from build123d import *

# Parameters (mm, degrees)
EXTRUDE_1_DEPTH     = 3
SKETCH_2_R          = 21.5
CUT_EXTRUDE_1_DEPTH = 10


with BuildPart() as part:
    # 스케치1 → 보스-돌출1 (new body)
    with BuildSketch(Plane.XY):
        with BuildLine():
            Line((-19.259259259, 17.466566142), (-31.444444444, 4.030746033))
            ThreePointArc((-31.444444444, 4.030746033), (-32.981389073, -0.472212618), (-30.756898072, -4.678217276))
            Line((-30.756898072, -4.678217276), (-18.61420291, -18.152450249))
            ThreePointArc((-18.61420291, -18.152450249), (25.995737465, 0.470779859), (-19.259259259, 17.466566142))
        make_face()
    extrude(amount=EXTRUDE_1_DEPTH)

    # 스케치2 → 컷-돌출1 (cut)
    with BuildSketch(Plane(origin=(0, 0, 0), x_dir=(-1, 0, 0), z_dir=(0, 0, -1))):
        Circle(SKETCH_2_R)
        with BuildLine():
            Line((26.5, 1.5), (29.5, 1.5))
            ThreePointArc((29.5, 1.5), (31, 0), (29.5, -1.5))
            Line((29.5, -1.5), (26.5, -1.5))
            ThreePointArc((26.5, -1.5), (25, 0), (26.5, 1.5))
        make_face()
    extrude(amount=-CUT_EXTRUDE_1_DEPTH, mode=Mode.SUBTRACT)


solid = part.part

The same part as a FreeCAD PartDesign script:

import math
import FreeCAD as App
import Part
import Sketcher
from FreeCAD import Vector

doc = App.newDocument("Part")
body = doc.addObject("PartDesign::Body", "Body")

# Sketch on XY plane
sketch1 = body.newObject("Sketcher::SketchObject", "Sketch")
sketch1.AttachmentSupport = (doc.getObject("XY_Plane"), [""])
sketch1.MapMode = "FlatFace"
sketch1.addGeometry(Part.LineSegment(Vector(-19, 17, 0), Vector(-31, 4, 0)), False)
sketch1.addGeometry(Part.ArcOfCircle(Part.Circle(Vector(-27, 0, 0), Vector(0, 0, 1), 6), math.radians(138), math.radians(231)), False)
sketch1.addGeometry(Part.LineSegment(Vector(-31, -5, 0), Vector(-19, -18, 0)), False)
sketch1.addGeometry(Part.ArcOfCircle(Part.Circle(Vector(0, 0, 0), Vector(0, 0, 1), 26), math.radians(-136), math.radians(138)), False)
sketch1.addConstraint(Sketcher.Constraint("Tangent", 0, 2, 1, 1))
sketch1.addConstraint(Sketcher.Constraint("Coincident", 1, 2, 2, 1))
sketch1.addConstraint(Sketcher.Constraint("Coincident", 2, 2, 3, 1))
sketch1.addConstraint(Sketcher.Constraint("Tangent", 3, 2, 0, 1))
sketch1.addConstraint(Sketcher.Constraint("Coincident", 3, 3, -1, 1))
sketch1.addConstraint(Sketcher.Constraint("PointOnObject", 1, 3, -1))
sketch1.addConstraint(Sketcher.Constraint("Equal", 0, 2))
sketch1.addConstraint(Sketcher.Constraint("Radius", 1, 6.0))
sketch1.addConstraint(Sketcher.Constraint("Radius", 3, 26.0))
sketch1.addConstraint(Sketcher.Constraint("DistanceX", 1, 3, -1, 1, 27.0))
sketch1.addConstraint(Sketcher.Constraint("DistanceX", 1, 2, -1, 1, 30.756898))
pad1 = body.newObject("PartDesign::Pad", "Pad")
pad1.Profile = sketch1
pad1.Length = 3

# Sketch on XY plane
sketch2 = body.newObject("Sketcher::SketchObject", "Sketch001")
sketch2.AttachmentSupport = (doc.getObject("XY_Plane"), [""])
sketch2.MapMode = "FlatFace"
sketch2.addGeometry(Part.Circle(Vector(0, 0, 0), Vector(0, 0, 1), 21.5), False)
sketch2.addGeometry(Part.LineSegment(Vector(-29.5, 1.5, 0), Vector(-26.5, 1.5, 0)), False)
sketch2.addGeometry(Part.ArcOfCircle(Part.Circle(Vector(-26.5, 0, 0), Vector(0, 0, 1), 1.5), math.radians(-90), math.radians(90)), False)
sketch2.addGeometry(Part.LineSegment(Vector(-26.5, -1.5, 0), Vector(-29.5, -1.5, 0)), False)
sketch2.addGeometry(Part.ArcOfCircle(Part.Circle(Vector(-29.5, 0, 0), Vector(0, 0, 1), 1.5), math.radians(90), math.radians(270)), False)
sketch2.addConstraint(Sketcher.Constraint("Tangent", 1, 2, 2, 2))
sketch2.addConstraint(Sketcher.Constraint("Tangent", 2, 1, 3, 1))
sketch2.addConstraint(Sketcher.Constraint("Tangent", 3, 2, 4, 2))
sketch2.addConstraint(Sketcher.Constraint("Tangent", 4, 1, 1, 1))
sketch2.addConstraint(Sketcher.Constraint("Horizontal", 1))
sketch2.addConstraint(Sketcher.Constraint("Horizontal", 3))
sketch2.addConstraint(Sketcher.Constraint("Coincident", 0, 3, -1, 1))
sketch2.addConstraint(Sketcher.Constraint("PointOnObject", 2, 3, -1))
sketch2.addConstraint(Sketcher.Constraint("Diameter", 0, 43.0))
sketch2.addConstraint(Sketcher.Constraint("Radius", 2, 1.5))
sketch2.addConstraint(Sketcher.Constraint("DistanceX", 1, 1, 1, 2, 3.0))
sketch2.addConstraint(Sketcher.Constraint("DistanceX", 2, 3, -1, 1, 26.5))
pocket1 = body.newObject("PartDesign::Pocket", "Pocket")
pocket1.Profile = sketch2
pocket1.Length = 10
pocket1.Reversed = True

doc.recompute()
